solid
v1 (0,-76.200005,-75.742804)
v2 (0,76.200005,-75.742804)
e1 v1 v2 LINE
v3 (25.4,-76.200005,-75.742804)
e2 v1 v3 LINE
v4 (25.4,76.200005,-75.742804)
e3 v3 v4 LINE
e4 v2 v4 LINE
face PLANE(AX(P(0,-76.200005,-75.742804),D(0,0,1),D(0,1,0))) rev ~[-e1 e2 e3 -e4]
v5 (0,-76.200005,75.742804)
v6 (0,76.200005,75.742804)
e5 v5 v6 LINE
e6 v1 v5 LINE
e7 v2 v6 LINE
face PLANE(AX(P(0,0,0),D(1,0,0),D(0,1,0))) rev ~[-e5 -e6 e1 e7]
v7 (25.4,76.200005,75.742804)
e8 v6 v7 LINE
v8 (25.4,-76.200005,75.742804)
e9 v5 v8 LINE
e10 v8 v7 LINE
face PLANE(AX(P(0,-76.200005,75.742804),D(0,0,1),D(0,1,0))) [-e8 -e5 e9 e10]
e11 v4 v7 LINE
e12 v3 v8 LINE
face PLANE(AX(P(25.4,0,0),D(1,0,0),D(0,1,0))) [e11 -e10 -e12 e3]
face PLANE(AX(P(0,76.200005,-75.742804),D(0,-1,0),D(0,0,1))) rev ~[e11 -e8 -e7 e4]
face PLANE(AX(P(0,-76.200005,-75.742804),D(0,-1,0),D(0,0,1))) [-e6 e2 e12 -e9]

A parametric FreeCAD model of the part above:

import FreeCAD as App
import Part
import Sketcher
from FreeCAD import Vector
Q = App.Units.Quantity

doc = App.newDocument("Part")
body = doc.addObject("PartDesign::Body", "Body")

# Sketch on YZ plane
sketch1 = body.newObject("Sketcher::SketchObject", "Sketch")
sketch1.AttachmentSupport = (doc.getObject("YZ_Plane"), [""])
sketch1.MapMode = "FlatFace"
sketch1.addGeometry([
    Part.LineSegment(Vector(-76, 76, 0), Vector(-76, -76, 0)),
    Part.LineSegment(Vector(-76, -76, 0), Vector(76, -76, 0)),
    Part.LineSegment(Vector(76, -76, 0), Vector(76, 76, 0)),
    Part.LineSegment(Vector(76, 76, 0), Vector(-76, 76, 0)),
], False)
sketch1.addConstraint([
    Sketcher.Constraint("Coincident", 0, 2, 1, 1),
    Sketcher.Constraint("Coincident", 1, 2, 2, 1),
    Sketcher.Constraint("Coincident", 2, 2, 3, 1),
    Sketcher.Constraint("Coincident", 3, 2, 0, 1),
    Sketcher.Constraint("Vertical", 0),
    Sketcher.Constraint("Horizontal", 1),
    Sketcher.Constraint("Vertical", 2),
    Sketcher.Constraint("Horizontal", 3),
    Sketcher.Constraint("Symmetric", 0, 2, 2, 2, -1, 1),
    Sketcher.Constraint("DistanceX", 0, 2, -1, 1, Q("3.0000002 in")),
    Sketcher.Constraint("DistanceY", 0, 2, -1, 1, Q("2.9820002 in")),
])
pad1 = body.newObject("PartDesign::Pad", "Pad")
pad1.Profile = sketch1
pad1.Length = Q("1 in")

doc.recompute()
